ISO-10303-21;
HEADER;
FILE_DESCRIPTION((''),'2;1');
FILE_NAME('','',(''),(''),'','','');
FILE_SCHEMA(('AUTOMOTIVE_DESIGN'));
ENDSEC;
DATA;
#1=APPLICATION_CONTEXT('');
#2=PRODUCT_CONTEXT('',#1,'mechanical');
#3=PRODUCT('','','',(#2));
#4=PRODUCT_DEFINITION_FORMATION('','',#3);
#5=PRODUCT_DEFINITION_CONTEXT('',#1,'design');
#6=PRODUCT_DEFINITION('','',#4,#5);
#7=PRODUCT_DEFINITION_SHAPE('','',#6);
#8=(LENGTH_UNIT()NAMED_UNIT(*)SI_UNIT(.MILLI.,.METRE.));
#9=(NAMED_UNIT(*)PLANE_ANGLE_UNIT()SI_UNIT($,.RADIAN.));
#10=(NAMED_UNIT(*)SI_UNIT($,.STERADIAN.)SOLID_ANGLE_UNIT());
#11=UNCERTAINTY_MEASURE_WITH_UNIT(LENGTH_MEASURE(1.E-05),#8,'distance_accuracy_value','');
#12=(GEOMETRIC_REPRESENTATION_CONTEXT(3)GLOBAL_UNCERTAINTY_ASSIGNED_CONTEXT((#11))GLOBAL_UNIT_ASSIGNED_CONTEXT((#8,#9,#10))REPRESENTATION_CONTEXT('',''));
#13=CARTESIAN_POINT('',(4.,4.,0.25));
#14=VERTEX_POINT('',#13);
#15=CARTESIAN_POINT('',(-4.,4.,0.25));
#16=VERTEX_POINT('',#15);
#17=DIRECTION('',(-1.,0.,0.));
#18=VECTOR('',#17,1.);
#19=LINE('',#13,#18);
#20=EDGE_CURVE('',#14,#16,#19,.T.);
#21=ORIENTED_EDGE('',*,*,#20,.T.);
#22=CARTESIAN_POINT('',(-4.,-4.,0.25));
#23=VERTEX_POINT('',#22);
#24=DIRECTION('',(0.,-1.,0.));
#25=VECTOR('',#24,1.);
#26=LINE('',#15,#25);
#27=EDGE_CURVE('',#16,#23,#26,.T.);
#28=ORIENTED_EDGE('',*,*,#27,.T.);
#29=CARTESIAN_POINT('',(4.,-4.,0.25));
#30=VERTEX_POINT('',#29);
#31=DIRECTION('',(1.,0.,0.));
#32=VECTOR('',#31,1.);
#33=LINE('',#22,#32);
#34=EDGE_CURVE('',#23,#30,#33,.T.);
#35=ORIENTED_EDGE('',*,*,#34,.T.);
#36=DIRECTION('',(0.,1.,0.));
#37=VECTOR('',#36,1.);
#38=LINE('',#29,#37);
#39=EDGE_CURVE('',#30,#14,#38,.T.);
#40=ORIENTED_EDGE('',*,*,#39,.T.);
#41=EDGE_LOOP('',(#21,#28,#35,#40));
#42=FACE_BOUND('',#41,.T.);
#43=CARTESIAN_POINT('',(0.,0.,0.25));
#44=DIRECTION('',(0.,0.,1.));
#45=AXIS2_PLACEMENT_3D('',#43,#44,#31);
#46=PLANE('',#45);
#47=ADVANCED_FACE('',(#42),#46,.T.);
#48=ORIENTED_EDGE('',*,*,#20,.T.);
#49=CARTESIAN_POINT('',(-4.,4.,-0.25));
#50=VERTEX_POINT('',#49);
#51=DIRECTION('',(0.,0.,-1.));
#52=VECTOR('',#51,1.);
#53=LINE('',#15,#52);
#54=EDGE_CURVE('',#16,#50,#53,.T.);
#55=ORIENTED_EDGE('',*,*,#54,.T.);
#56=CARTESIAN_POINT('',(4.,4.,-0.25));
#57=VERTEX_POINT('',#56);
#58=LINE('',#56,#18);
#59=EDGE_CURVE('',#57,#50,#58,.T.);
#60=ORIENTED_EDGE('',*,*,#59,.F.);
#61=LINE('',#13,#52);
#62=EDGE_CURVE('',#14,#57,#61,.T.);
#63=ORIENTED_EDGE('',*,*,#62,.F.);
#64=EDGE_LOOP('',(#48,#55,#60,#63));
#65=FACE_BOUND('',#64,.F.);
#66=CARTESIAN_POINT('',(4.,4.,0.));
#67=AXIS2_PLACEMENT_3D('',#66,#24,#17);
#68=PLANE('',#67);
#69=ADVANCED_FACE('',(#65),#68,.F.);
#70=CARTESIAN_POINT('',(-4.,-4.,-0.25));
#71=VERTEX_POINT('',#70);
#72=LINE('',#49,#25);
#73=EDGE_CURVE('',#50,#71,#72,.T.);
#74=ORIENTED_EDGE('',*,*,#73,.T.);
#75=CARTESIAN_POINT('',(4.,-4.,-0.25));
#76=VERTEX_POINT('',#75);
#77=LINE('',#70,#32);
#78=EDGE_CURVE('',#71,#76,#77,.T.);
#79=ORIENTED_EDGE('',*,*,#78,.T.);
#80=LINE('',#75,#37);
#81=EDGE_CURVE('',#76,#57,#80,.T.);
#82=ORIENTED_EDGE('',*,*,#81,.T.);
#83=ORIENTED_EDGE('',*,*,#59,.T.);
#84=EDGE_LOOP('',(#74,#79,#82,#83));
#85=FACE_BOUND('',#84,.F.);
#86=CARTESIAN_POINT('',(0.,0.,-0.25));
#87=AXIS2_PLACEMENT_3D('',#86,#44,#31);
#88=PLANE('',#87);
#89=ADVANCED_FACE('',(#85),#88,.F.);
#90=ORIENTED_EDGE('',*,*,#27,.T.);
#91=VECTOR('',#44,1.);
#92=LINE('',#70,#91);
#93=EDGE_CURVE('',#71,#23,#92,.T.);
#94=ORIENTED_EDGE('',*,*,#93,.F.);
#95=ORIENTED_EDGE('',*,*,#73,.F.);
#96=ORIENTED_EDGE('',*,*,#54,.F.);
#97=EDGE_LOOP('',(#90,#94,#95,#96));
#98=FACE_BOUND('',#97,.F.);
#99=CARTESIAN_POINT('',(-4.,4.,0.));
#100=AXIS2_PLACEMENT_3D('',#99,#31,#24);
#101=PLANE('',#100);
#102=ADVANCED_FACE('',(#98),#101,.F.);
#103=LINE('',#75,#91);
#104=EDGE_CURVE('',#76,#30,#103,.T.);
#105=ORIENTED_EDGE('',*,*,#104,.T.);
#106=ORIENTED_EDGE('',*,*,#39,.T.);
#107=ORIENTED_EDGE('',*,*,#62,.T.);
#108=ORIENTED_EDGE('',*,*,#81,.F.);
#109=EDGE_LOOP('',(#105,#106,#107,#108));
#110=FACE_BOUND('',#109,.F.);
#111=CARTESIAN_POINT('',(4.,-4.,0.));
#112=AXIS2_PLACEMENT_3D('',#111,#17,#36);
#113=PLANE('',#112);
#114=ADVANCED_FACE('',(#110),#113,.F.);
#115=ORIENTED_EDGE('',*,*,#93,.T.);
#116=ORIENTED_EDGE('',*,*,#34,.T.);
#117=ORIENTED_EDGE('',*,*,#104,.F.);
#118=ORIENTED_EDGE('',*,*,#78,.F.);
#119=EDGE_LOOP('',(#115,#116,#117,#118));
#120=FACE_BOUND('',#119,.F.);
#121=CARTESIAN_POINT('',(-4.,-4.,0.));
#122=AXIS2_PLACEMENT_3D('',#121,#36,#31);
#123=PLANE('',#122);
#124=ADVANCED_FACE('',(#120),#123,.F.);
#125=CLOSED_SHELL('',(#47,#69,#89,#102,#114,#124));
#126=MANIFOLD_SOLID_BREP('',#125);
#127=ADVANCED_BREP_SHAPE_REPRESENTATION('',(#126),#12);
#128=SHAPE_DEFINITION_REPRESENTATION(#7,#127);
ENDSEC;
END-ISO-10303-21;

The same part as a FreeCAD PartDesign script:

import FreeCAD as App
import Part
import Sketcher

V = App.Vector
Q = App.Units.Quantity


def add_polygon(sketch, points):
    """Adds a closed chain of lines whose ends are joined by coincident constraints."""
    first, n = sketch.GeometryCount, len(points)
    for a, b in zip(points, points[1:] + points[:1]):
        sketch.addGeometry(Part.LineSegment(App.Vector(*a, 0), App.Vector(*b, 0)), False)
    for i in range(n):
        sketch.addConstraint(Sketcher.Constraint("Coincident", first + i, 2, first + (i + 1) % n, 1))

doc = App.newDocument("Part")
body = doc.addObject("PartDesign::Body", "Body")

# Sketch on XY plane
sketch1 = body.newObject("Sketcher::SketchObject", "Sketch")
sketch1.AttachmentSupport = (doc.getObject("XY_Plane"), [""])
sketch1.MapMode = "FlatFace"
add_polygon(sketch1, [(-4, 4), (-4, -4), (4, -4), (4, 4)])  # lines 0-3
sketch1.addConstraint([
    Sketcher.Constraint("Vertical", 0),
    Sketcher.Constraint("Horizontal", 1),
    Sketcher.Constraint("Vertical", 2),
    Sketcher.Constraint("Horizontal", 3),
    Sketcher.Constraint("Symmetric", 0, 2, 2, 2, -1, 1),
    Sketcher.Constraint("Equal", 3, 0),
    Sketcher.Constraint("DistanceX", 1, 1, 1, 2, Q("8 mm")),
])
pad1 = body.newObject("PartDesign::Pad", "Pad")
pad1.Profile = sketch1
pad1.Length = 0.5
pad1.Midplane = True

doc.recompute()
